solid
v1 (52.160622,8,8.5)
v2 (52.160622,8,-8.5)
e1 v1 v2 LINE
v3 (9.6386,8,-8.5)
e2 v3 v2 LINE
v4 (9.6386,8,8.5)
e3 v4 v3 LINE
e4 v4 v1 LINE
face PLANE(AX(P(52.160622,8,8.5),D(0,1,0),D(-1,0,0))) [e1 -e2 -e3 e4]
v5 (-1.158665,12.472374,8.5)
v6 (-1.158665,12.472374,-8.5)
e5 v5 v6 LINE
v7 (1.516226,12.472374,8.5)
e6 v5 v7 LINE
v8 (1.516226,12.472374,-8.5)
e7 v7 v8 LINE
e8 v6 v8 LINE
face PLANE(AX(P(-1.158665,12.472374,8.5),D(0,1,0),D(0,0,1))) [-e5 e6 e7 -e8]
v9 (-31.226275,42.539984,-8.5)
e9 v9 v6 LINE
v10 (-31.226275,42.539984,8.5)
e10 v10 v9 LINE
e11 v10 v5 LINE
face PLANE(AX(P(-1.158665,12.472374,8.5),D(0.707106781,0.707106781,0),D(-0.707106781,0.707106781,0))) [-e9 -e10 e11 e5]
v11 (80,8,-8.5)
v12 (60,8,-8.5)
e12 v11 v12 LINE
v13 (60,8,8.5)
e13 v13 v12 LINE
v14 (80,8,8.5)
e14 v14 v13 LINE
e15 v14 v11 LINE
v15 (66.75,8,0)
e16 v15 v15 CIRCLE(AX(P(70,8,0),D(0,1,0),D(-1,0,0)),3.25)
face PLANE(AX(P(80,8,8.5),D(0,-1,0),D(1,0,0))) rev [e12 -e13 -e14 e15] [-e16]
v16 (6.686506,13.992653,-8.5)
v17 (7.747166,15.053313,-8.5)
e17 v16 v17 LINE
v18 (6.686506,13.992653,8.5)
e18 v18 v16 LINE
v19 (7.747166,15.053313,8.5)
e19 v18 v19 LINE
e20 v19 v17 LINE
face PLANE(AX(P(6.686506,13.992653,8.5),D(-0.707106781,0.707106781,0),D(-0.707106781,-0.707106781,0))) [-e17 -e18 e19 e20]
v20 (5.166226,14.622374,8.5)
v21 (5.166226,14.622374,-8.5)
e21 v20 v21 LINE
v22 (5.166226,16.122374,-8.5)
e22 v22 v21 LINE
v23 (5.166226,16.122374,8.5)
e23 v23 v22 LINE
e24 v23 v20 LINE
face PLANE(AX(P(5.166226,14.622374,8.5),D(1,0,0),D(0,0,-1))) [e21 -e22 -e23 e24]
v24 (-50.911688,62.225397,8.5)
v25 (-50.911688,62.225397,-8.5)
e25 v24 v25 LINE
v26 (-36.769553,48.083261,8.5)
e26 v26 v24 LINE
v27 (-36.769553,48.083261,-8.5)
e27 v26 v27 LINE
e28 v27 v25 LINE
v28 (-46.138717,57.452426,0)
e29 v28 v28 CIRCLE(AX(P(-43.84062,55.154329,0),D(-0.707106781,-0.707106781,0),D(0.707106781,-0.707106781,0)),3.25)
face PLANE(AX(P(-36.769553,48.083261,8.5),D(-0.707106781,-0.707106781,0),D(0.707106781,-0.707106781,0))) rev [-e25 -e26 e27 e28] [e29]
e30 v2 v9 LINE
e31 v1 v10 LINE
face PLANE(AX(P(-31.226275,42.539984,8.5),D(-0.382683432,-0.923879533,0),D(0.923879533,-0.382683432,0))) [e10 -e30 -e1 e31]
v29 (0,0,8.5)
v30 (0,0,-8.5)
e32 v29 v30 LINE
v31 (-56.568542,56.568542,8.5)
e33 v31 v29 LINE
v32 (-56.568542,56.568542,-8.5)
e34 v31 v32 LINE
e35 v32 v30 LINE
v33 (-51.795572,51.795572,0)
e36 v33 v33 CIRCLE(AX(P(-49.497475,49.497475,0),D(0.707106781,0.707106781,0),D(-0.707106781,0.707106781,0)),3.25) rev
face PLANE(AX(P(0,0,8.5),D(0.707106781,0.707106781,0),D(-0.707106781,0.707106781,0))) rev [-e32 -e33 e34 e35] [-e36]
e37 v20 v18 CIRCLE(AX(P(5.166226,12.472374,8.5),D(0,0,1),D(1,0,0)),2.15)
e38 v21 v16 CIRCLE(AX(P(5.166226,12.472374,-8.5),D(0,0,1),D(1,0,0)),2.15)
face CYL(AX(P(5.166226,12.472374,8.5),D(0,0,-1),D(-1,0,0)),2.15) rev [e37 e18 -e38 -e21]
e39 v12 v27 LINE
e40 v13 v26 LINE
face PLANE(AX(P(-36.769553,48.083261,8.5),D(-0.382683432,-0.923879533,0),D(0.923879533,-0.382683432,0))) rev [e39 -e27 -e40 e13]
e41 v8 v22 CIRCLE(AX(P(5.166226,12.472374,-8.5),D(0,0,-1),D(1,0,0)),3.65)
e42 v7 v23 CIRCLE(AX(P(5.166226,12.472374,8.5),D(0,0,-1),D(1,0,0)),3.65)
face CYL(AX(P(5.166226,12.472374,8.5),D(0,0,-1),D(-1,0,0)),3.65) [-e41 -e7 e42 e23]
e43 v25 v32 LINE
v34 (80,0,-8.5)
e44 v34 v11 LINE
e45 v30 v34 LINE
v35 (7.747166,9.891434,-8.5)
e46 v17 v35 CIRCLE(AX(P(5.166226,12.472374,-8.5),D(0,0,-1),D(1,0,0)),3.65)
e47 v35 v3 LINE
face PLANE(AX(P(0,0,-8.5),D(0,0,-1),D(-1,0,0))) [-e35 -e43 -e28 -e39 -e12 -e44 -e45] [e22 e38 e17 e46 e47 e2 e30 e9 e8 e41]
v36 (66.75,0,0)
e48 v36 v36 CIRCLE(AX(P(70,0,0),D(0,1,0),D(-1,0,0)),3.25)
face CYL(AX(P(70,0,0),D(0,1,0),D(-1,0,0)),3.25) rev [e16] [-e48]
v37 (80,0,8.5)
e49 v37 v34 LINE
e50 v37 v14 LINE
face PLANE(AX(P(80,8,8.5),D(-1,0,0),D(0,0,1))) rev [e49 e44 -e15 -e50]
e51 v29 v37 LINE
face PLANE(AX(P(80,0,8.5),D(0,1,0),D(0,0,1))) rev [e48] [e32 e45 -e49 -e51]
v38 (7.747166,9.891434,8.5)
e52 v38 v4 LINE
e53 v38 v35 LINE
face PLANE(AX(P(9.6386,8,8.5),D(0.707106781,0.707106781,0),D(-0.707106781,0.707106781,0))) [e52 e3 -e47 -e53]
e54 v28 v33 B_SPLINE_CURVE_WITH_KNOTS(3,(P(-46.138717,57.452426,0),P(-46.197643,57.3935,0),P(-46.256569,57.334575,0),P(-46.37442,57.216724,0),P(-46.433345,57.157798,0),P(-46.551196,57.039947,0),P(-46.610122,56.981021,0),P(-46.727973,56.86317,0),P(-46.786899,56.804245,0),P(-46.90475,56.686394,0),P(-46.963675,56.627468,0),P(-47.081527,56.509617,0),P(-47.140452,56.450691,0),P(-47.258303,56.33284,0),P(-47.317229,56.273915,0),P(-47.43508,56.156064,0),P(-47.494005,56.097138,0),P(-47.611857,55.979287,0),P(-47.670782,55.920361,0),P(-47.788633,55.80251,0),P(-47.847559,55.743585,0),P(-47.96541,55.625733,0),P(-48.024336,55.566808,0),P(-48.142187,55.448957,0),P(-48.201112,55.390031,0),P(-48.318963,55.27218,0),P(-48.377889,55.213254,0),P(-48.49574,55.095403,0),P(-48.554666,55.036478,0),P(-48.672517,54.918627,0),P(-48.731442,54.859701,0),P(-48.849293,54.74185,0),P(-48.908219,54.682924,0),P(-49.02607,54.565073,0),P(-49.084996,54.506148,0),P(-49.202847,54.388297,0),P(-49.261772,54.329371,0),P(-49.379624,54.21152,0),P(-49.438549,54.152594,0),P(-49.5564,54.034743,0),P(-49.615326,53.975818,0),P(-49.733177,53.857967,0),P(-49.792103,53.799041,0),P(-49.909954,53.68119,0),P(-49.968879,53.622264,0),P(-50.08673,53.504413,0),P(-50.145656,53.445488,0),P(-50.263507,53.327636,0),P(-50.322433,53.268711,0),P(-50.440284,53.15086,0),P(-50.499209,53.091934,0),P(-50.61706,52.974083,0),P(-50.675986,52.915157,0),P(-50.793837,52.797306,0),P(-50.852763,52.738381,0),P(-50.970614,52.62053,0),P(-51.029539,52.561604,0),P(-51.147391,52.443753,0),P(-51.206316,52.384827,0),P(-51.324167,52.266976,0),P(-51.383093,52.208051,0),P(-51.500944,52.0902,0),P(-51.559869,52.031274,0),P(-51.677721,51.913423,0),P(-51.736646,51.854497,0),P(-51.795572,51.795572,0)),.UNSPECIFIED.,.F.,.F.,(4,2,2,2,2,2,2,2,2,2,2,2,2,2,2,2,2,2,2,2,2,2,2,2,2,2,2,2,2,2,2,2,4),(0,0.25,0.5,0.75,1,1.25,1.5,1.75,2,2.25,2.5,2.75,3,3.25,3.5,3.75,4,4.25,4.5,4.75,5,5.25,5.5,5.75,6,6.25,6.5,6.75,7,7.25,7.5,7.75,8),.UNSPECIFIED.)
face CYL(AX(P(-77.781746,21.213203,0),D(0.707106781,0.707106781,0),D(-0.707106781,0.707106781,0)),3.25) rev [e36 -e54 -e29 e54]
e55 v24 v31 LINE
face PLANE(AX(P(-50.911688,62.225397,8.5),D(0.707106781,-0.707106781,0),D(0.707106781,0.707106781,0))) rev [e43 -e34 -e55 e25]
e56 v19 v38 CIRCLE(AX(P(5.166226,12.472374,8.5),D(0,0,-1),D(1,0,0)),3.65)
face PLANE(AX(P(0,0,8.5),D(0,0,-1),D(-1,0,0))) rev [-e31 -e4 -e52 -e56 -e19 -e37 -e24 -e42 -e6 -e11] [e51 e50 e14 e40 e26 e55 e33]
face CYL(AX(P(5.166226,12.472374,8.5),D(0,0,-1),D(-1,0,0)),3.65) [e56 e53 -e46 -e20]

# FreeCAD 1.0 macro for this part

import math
import FreeCAD as App
import Part
import Sketcher
Q = App.Units.Quantity

doc = App.newDocument("Part")
params = doc.addObject("Spreadsheet::Sheet", "Params")
for row, (alias, value) in enumerate([
    ("sketch1_width", "80 mm"),
    ("sketch1_width2", "20 mm"),
    ("sketch1_height", "8 mm"),
    ("sketch1_radius", "3.65 mm"),
    ("sketch1_radius2", "2.15 mm"),
    ("pad1_length", "17 mm"),
    ("sketch2_diameter", "6.5 mm"),
], start=1):
    params.set(f"A{row}", alias)
    params.set(f"B{row}", "=" + value)
    params.setAlias(f"B{row}", alias)

body = doc.addObject("PartDesign::Body", "Body")

sketch1 = body.newObject("Sketcher::SketchObject", "Sketch")
sketch1.AttachmentSupport = (doc.getObject("XY_Plane"), [""])
sketch1.MapMode = "FlatFace"
sketch1.addGeometry([
    Part.LineSegment(App.Vector(0, 0, 0), App.Vector(80, 0, 0)),
    Part.LineSegment(App.Vector(80, 0, 0), App.Vector(80, 8, 0)),
    Part.LineSegment(App.Vector(80, 8, 0), App.Vector(60, 8, 0)),
    Part.LineSegment(App.Vector(60, 8, 0), App.Vector(-36.8, 48.1, 0)),
    Part.LineSegment(App.Vector(-36.8, 48.1, 0), App.Vector(-50.9, 62.2, 0)),
    Part.LineSegment(App.Vector(-50.9, 62.2, 0), App.Vector(-56.6, 56.6, 0)),
    Part.LineSegment(App.Vector(-56.6, 56.6, 0), App.Vector(0, 0, 0)),
    Part.LineSegment(App.Vector(52.2, 8, 0), App.Vector(9.6, 8, 0)),
    Part.LineSegment(App.Vector(9.6, 8, 0), App.Vector(7.7, 9.9, 0)),
    Part.ArcOfCircle(Part.Circle(App.Vector(5.2, 12.5, 0), App.Vector(0, 0, 1), 3.6), math.radians(-45), math.radians(45)),
    Part.LineSegment(App.Vector(7.7, 15.1, 0), App.Vector(6.7, 14, 0)),
    Part.ArcOfCircle(Part.Circle(App.Vector(5.2, 12.5, 0), App.Vector(0, 0, 1), 2.1), math.radians(90), math.radians(405)),
    Part.LineSegment(App.Vector(5.2, 14.6, 0), App.Vector(5.2, 16.1, 0)),
    Part.ArcOfCircle(Part.Circle(App.Vector(5.2, 12.5, 0), App.Vector(0, 0, 1), 3.7), math.radians(90), math.radians(180)),
    Part.LineSegment(App.Vector(1.5, 12.5, 0), App.Vector(-1.2, 12.5, 0)),
    Part.LineSegment(App.Vector(-1.2, 12.5, 0), App.Vector(-31.2, 42.5, 0)),
    Part.LineSegment(App.Vector(-31.2, 42.5, 0), App.Vector(52.2, 8, 0)),
], False)
sketch1.addConstraint([
    Sketcher.Constraint("Coincident", 0, 2, 1, 1),
    Sketcher.Constraint("Coincident", 1, 2, 2, 1),
    Sketcher.Constraint("Coincident", 2, 2, 3, 1),
    Sketcher.Constraint("Coincident", 3, 2, 4, 1),
    Sketcher.Constraint("Coincident", 4, 2, 5, 1),
    Sketcher.Constraint("Coincident", 5, 2, 6, 1),
    Sketcher.Constraint("Coincident", 6, 2, 0, 1),
    Sketcher.Constraint("Coincident", 7, 2, 8, 1),
    Sketcher.Constraint("Coincident", 8, 2, 9, 1),
    Sketcher.Constraint("Coincident", 9, 2, 10, 1),
    Sketcher.Constraint("Coincident", 10, 2, 11, 2),
    Sketcher.Constraint("Coincident", 11, 1, 12, 1),
    Sketcher.Constraint("Coincident", 12, 2, 13, 1),
    Sketcher.Constraint("Coincident", 13, 2, 14, 1),
    Sketcher.Constraint("Coincident", 14, 2, 15, 1),
    Sketcher.Constraint("Coincident", 15, 2, 16, 1),
    Sketcher.Constraint("Coincident", 16, 2, 7, 1),
    Sketcher.Constraint("Horizontal", 0),
    Sketcher.Constraint("Vertical", 1),
    Sketcher.Constraint("Horizontal", 2),
    Sketcher.Constraint("Horizontal", 7),
    Sketcher.Constraint("Vertical", 12),
    Sketcher.Constraint("Horizontal", 14),
    Sketcher.Constraint("Coincident", 6, 2, -1, 1),
    Sketcher.Constraint("Coincident", 11, 3, 9, 3),
    Sketcher.Constraint("Coincident", 13, 3, 9, 3),
    Sketcher.Constraint("Equal", 9, 13),
    Sketcher.Constraint("Perpendicular", 4, 5),
    Sketcher.Constraint("Perpendicular", 5, 6),
    Sketcher.Constraint("Parallel", 6, 8),
    Sketcher.Constraint("Perpendicular", 8, 10),
    Sketcher.Constraint("Perpendicular", 10, 15),
    Sketcher.Constraint("Parallel", 3, 16),
    Sketcher.Constraint("Horizontal", 2, 2, 7, 2),
    Sketcher.Constraint("Horizontal", 11, 3, 13, 2),
    Sketcher.Constraint("Vertical", 8, 2, 9, 2),
    Sketcher.Constraint("Vertical", 13, 3, 11, 1),
    Sketcher.Constraint("DistanceX", 0, 1, 0, 2, 80.0),
    Sketcher.Constraint("DistanceX", 2, 2, 2, 1, 20.0),
    Sketcher.Constraint("DistanceY", 1, 1, 1, 2, 8.0),
    Sketcher.Constraint("Angle", 4, Q("135 deg")),
    Sketcher.Constraint("Radius", 9, 3.65),
    Sketcher.Constraint("Radius", 11, 2.15),
    Sketcher.Constraint("Distance", 4, 20.0),
    Sketcher.Constraint("Distance", 5, 8.0),
    Sketcher.Constraint("Distance", 6, 80.0),
    Sketcher.Constraint("DistanceX", 14, 2, 14, 1, 2.674892),
    Sketcher.Constraint("DistanceX", -1, 1, 7, 2, 9.6386),
    Sketcher.Constraint("DistanceX", 15, 2, 13, 2, 32.742502),
    Sketcher.Constraint("Distance", 8, 2.674892),
    Sketcher.Constraint("DistanceX", 7, 2, 7, 1, 42.522022),
])
sketch1.setExpression("Constraints[37]", "Params.sketch1_width")
sketch1.setExpression("Constraints[38]", "Params.sketch1_width2")
sketch1.setExpression("Constraints[39]", "Params.sketch1_height")
sketch1.setExpression("Constraints[41]", "Params.sketch1_radius")
sketch1.setExpression("Constraints[42]", "Params.sketch1_radius2")
pad1 = body.newObject("PartDesign::Pad", "Pad")
pad1.Profile = sketch1
pad1.setExpression("Length", "Params.pad1_length")
pad1.Midplane = True

sketch2 = body.newObject("Sketcher::SketchObject", "Sketch001")
sketch2.AttachmentSupport = (doc.getObject("XZ_Plane"), [""])
sketch2.MapMode = "FlatFace"
sketch2.AttachmentOffset = App.Placement(App.Vector(0, 0, -8), App.Rotation())
sketch2.addGeometry(Part.Circle(App.Vector(70, 0, 0), App.Vector(0, 0, 1), 3.2), False)
sketch2.addConstraint([
    Sketcher.Constraint("PointOnObject", 0, 3, -1),
    Sketcher.Constraint("Diameter", 0, 6.5),
    Sketcher.Constraint("DistanceX", -1, 1, 0, 3, 70.0),
])
sketch2.setExpression("Constraints[1]", "Params.sketch2_diameter")
pocket1 = body.newObject("PartDesign::Pocket", "Pocket")
pocket1.Profile = sketch2
pocket1.Type = "ThroughAll"
pocket1.Reversed = True
doc.recompute()

datumplane = body.newObject("PartDesign::Plane", "DatumPlane")
datumplane.Placement = App.Placement(App.Vector(0, 0, 0), App.Rotation(App.Vector(0.382683432, 0.923879533, 0), App.Vector(0, 0, -1), App.Vector(-0.923879533, 0.382683432, 0), "ZXY"))
mirrored = body.newObject("PartDesign::Mirrored", "Mirrored")
mirrored.Originals = [pocket1]
mirrored.MirrorPlane = (datumplane, [""])
body.Tip = mirrored

doc.recompute()
